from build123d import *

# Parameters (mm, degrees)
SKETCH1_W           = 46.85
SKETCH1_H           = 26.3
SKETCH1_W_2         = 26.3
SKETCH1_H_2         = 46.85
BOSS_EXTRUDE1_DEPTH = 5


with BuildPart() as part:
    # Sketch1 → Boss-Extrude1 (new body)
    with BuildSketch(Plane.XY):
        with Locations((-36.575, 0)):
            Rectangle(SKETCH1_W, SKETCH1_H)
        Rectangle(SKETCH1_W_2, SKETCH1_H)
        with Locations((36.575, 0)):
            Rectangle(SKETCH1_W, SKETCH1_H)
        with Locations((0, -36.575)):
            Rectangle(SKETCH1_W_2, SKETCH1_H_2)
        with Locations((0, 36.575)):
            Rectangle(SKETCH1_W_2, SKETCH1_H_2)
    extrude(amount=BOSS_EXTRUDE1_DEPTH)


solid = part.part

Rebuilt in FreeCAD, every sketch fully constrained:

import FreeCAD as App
import Part
import Sketcher

V = App.Vector


def add_polygon(sketch, points):
    """Adds a closed chain of lines whose ends are joined by coincident constraints."""
    first, n = sketch.GeometryCount, len(points)
    for a, b in zip(points, points[1:] + points[:1]):
        sketch.addGeometry(Part.LineSegment(App.Vector(*a, 0), App.Vector(*b, 0)), False)
    for i in range(n):
        sketch.addConstraint(Sketcher.Constraint("Coincident", first + i, 2, first + (i + 1) % n, 1))

doc = App.newDocument("Part")
body = doc.addObject("PartDesign::Body", "Body")

# Sketch on XY plane
sketch1 = body.newObject("Sketcher::SketchObject", "Sketch")
sketch1.AttachmentSupport = (doc.getObject("XY_Plane"), [""])
sketch1.MapMode = "FlatFace"
add_polygon(sketch1, [(-60, 13), (-60, -13), (-13, -13), (-13, -60), (13, -60), (13, -13), (60, -13), (60, 13), (13, 13), (13, 60), (-13, 60), (-13, 13)])  # lines 0-11
sketch1.addConstraint([
    Sketcher.Constraint("Vertical", 0),
    Sketcher.Constraint("Horizontal", 1),
    Sketcher.Constraint("Vertical", 2),
    Sketcher.Constraint("Horizontal", 3),
    Sketcher.Constraint("Vertical", 4),
    Sketcher.Constraint("Horizontal", 5),
    Sketcher.Constraint("Vertical", 6),
    Sketcher.Constraint("Horizontal", 7),
    Sketcher.Constraint("Vertical", 8),
    Sketcher.Constraint("Horizontal", 9),
    Sketcher.Constraint("Vertical", 10),
    Sketcher.Constraint("Horizontal", 11),
    Sketcher.Constraint("Symmetric", 0, 2, 6, 2, -1, 1),
    Sketcher.Constraint("Symmetric", 2, 2, 8, 2, -1, 1),
    Sketcher.Constraint("Symmetric", 4, 2, 10, 2, -1, 1),
    Sketcher.Constraint("Symmetric", 1, 2, 4, 2, -2),
    Sketcher.Constraint("Equal", 9, 0),
    Sketcher.Constraint("Equal", 11, 2),
    Sketcher.Constraint("DistanceX", 3, 1, 3, 2, 26.3),
    Sketcher.Constraint("DistanceX", 0, 2, -1, 1, 60.0),
])
pad1 = body.newObject("PartDesign::Pad", "Pad")
pad1.Profile = sketch1
pad1.Length = 5

doc.recompute()
